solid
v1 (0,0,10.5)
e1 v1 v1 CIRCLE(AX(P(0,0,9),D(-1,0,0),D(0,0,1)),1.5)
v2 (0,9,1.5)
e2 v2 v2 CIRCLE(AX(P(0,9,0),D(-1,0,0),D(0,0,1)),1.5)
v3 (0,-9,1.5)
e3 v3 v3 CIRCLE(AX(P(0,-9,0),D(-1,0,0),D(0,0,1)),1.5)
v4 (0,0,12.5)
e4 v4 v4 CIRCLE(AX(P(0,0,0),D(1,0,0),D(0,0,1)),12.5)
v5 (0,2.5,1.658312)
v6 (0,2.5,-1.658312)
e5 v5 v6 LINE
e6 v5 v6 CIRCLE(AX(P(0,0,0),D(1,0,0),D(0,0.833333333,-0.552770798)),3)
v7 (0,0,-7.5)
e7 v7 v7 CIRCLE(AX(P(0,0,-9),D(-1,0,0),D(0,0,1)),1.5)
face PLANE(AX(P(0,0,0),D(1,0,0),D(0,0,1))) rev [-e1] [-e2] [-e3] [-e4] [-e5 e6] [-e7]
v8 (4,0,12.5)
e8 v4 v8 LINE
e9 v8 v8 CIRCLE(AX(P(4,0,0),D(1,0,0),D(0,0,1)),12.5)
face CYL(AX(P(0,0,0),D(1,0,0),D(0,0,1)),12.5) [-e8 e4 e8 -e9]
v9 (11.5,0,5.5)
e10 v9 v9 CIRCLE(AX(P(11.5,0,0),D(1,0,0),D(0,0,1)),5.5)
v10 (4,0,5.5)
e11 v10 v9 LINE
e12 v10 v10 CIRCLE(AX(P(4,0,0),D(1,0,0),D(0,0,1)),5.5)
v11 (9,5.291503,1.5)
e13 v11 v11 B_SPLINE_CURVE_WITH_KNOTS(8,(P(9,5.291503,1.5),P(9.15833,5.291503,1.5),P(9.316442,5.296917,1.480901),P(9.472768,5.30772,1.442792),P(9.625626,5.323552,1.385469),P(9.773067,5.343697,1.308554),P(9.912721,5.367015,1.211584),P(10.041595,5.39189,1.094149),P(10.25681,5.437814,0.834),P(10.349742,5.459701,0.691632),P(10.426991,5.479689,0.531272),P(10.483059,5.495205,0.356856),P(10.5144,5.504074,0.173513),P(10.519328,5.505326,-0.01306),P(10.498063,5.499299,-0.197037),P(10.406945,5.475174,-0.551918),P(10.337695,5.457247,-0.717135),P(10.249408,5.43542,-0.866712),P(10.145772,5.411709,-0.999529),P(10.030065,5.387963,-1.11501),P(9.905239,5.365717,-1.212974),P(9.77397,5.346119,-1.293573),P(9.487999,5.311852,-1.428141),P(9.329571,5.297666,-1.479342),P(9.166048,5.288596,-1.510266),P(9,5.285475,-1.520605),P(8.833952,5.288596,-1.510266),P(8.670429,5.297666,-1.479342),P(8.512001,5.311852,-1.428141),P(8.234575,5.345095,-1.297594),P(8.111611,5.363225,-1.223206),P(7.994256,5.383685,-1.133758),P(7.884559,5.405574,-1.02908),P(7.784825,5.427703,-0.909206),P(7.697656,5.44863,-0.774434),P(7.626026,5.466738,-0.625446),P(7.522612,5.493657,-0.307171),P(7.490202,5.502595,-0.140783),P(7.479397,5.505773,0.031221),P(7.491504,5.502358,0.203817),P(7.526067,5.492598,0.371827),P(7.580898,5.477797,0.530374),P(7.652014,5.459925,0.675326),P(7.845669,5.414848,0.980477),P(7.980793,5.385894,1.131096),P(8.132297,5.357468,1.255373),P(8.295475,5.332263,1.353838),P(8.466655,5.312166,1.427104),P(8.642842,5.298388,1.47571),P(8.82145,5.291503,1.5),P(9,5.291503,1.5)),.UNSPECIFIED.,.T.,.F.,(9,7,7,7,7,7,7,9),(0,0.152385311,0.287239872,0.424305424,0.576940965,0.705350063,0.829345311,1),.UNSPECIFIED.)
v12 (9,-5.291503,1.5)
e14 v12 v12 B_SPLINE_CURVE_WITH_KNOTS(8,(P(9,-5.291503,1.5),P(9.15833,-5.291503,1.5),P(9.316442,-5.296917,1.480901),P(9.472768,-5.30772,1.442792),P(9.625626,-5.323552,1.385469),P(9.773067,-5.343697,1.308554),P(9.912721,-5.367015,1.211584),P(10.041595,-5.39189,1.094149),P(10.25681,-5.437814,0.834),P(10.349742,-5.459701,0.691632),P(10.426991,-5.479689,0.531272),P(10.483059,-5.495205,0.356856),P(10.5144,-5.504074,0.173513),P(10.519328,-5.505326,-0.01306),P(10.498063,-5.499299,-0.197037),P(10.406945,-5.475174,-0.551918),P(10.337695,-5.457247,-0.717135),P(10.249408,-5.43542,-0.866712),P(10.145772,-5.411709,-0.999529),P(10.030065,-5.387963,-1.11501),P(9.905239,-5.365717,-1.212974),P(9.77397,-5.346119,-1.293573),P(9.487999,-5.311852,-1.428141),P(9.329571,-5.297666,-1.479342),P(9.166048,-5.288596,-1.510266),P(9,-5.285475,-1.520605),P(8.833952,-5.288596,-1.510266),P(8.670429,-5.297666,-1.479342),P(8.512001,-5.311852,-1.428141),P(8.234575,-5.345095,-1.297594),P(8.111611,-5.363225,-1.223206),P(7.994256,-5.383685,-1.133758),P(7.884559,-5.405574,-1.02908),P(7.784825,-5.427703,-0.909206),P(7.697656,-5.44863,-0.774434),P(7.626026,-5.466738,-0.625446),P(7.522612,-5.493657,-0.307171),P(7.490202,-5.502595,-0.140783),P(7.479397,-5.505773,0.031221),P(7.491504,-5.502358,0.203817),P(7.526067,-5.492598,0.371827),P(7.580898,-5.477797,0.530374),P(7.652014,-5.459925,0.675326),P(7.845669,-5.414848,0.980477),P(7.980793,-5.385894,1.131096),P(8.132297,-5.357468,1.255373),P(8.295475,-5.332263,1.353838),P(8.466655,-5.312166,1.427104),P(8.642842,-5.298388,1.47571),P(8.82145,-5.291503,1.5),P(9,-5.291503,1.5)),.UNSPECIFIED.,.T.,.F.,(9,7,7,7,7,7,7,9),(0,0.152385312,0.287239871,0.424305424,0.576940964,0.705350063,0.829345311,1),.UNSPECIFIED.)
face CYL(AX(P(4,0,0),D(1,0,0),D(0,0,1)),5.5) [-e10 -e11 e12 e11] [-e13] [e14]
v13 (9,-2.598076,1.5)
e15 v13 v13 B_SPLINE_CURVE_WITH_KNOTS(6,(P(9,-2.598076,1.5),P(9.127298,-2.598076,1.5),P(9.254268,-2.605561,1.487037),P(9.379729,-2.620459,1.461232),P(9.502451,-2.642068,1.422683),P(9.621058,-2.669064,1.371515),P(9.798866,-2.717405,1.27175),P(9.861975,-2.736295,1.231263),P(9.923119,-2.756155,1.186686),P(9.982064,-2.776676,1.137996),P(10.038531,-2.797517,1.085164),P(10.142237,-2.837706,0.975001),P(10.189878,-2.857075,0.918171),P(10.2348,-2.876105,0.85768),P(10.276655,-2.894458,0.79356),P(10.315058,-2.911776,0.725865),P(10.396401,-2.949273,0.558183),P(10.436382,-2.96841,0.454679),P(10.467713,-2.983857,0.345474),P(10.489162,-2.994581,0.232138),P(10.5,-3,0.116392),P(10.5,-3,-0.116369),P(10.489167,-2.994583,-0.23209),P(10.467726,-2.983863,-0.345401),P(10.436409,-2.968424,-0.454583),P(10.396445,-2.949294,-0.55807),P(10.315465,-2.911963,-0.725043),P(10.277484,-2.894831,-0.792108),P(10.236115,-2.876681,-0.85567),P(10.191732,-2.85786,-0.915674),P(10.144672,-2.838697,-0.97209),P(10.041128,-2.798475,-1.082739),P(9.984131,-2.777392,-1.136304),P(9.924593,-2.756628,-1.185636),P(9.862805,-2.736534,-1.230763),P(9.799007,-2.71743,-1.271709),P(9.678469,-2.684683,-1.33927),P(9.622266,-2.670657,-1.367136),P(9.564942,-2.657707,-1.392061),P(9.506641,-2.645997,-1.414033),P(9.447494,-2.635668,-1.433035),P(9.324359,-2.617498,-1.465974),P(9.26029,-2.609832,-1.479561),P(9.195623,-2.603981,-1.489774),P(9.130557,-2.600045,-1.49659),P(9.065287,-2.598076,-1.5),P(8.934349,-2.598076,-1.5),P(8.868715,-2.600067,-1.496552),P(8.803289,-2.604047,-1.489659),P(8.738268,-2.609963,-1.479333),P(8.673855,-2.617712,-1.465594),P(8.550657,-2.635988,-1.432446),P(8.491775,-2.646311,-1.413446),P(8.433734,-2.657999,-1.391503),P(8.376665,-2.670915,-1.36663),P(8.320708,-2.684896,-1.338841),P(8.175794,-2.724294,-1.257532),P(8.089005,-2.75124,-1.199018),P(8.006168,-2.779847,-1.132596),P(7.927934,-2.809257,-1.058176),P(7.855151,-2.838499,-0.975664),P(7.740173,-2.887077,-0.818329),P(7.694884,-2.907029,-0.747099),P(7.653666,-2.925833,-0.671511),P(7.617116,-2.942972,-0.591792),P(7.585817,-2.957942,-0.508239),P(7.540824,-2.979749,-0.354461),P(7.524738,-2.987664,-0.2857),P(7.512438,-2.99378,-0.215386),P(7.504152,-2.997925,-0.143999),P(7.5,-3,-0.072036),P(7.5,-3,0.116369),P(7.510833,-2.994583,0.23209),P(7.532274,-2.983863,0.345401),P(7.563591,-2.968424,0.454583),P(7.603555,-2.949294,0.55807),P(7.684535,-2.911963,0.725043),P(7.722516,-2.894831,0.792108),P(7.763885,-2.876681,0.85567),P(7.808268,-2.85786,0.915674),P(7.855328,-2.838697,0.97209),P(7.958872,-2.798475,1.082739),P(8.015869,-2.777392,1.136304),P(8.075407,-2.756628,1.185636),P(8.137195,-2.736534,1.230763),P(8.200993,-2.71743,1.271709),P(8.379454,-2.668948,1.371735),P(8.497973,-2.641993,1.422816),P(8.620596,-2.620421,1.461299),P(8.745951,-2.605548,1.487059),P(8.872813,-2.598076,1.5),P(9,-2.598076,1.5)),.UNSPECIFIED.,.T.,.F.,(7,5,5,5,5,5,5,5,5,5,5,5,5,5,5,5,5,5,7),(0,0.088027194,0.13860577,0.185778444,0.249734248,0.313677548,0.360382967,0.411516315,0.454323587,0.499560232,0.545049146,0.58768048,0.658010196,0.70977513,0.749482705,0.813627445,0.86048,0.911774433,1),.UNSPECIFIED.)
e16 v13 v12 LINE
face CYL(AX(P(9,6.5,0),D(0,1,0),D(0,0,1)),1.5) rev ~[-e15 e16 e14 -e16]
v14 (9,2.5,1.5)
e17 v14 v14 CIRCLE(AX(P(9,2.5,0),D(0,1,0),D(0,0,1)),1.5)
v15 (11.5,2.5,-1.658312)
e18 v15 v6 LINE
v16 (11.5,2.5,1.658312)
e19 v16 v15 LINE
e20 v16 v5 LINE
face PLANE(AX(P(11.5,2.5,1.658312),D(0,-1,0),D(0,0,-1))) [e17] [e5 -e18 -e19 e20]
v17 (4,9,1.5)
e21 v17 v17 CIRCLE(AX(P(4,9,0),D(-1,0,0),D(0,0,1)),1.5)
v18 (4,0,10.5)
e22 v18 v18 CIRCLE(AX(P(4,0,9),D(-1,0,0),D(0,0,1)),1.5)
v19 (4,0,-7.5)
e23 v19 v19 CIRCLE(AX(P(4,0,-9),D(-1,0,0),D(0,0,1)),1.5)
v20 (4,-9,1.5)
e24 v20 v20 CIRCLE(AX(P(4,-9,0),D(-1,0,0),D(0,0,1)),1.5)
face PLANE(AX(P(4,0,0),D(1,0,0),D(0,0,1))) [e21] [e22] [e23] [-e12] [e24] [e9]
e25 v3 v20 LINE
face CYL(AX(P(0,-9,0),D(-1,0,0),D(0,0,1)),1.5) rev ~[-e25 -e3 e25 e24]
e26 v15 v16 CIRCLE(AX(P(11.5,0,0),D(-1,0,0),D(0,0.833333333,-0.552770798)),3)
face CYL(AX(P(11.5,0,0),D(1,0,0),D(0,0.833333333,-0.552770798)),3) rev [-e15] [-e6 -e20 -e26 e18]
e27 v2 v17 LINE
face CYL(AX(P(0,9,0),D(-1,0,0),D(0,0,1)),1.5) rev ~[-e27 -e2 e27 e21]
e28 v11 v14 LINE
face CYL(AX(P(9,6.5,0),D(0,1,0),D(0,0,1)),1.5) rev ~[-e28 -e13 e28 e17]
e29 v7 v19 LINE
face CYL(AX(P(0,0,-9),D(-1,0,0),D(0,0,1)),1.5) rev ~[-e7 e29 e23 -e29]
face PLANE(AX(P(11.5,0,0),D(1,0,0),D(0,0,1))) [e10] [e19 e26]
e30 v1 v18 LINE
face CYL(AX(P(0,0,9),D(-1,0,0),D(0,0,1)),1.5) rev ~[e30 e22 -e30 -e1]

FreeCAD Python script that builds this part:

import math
import FreeCAD as App
import Part
import Sketcher
from FreeCAD import Vector
Q = App.Units.Quantity


def add_polygon(sketch, points):
    """Adds a closed chain of lines whose ends are joined by coincident constraints."""
    first, n = sketch.GeometryCount, len(points)
    for a, b in zip(points, points[1:] + points[:1]):
        sketch.addGeometry(Part.LineSegment(App.Vector(*a, 0), App.Vector(*b, 0)), False)
    for i in range(n):
        sketch.addConstraint(Sketcher.Constraint("Coincident", first + i, 2, first + (i + 1) % n, 1))

doc = App.newDocument("Part")
body = doc.addObject("PartDesign::Body", "Body")

sketch1 = doc.addObject("Sketcher::SketchObject", "Sketch")
body.addObject(sketch1)
sketch1.AttachmentSupport = (doc.XY_Plane, [""])
sketch1.MapMode = "FlatFace"
add_polygon(sketch1, [(0, 12.5), (0, 0), (11.5, 0), (11.5, 5.5), (4, 5.5), (4, 12.5)])
sketch1.addConstraint([
    Sketcher.Constraint("Vertical", 0),
    Sketcher.Constraint("Horizontal", 1),
    Sketcher.Constraint("Vertical", 2),
    Sketcher.Constraint("Horizontal", 3),
    Sketcher.Constraint("Vertical", 4),
    Sketcher.Constraint("Horizontal", 5),
    Sketcher.Constraint("Coincident", 0, 2, -1, 1),
    Sketcher.Constraint("DistanceX", 5, 2, 5, 1, Q("4 mm")),
    Sketcher.Constraint("DistanceY", 4, 1, 4, 2, Q("7 mm")),
    Sketcher.Constraint("DistanceX", 1, 1, 1, 2, Q("11.5 mm")),
    Sketcher.Constraint("DistanceY", 0, 2, 0, 1, Q("12.5 mm")),
])
revolution = doc.addObject("PartDesign::Revolution", "Revolution")
body.addObject(revolution)
revolution.Profile = sketch1
revolution.ReferenceAxis = (sketch1, ["H_Axis"])
revolution.Angle = 360

sketch2 = doc.addObject("Sketcher::SketchObject", "Sketch001")
body.addObject(sketch2)
sketch2.AttachmentSupport = (doc.YZ_Plane, [""])
sketch2.MapMode = "FlatFace"
sketch2.AttachmentOffset = App.Placement(Vector(0, 0, 11.5), App.Rotation())
sketch2.addGeometry([
    Part.LineSegment(Vector(2.5, -1.7, 0), Vector(2.5, 1.7, 0)),
    Part.ArcOfCircle(Part.Circle(Vector(0, 0, 0), Vector(0, 0, 1), 3), math.radians(34), math.radians(326)),
], False)
sketch2.addConstraint([
    Sketcher.Constraint("Coincident", 0, 1, 1, 2),
    Sketcher.Constraint("Coincident", 1, 1, 0, 2),
    Sketcher.Constraint("Vertical", 0),
    Sketcher.Constraint("Coincident", 1, 3, -1, 1),
    Sketcher.Constraint("Radius", 1, Q("3 mm")),
    Sketcher.Constraint("DistanceX", -1, 1, 0, 1, Q("2.5 mm")),
])
pocket1 = doc.addObject("PartDesign::Pocket", "Pocket")
body.addObject(pocket1)
pocket1.Profile = sketch2
pocket1.Type = "UpToFirst"

sketch3 = doc.addObject("Sketcher::SketchObject", "Sketch002")
body.addObject(sketch3)
sketch3.AttachmentSupport = (doc.XZ_Plane, [""])
sketch3.MapMode = "FlatFace"
sketch3.AttachmentOffset = App.Placement(Vector(0, 0, -6.5), App.Rotation())
sketch3.addGeometry(Part.Circle(Vector(9, 0, 0), Vector(0, 0, 1), 1.5), False)
sketch3.addConstraint([
    Sketcher.Constraint("PointOnObject", 0, 3, -1),
    Sketcher.Constraint("Diameter", 0, Q("3 mm")),
    Sketcher.Constraint("DistanceX", -1, 1, 0, 3, Q("9 mm")),
])
pocket2 = doc.addObject("PartDesign::Pocket", "Pocket001")
body.addObject(pocket2)
pocket2.Profile = sketch3
pocket2.Length = 16
pocket2.Reversed = True

sketch4 = doc.addObject("Sketcher::SketchObject", "Sketch003")
body.addObject(sketch4)
sketch4.AttachmentSupport = (doc.YZ_Plane, [""])
sketch4.MapMode = "FlatFace"
sketch4.addGeometry(Part.Circle(Vector(0, 9, 0), Vector(0, 0, 1), 1.5), False)
sketch4.addConstraint([
    Sketcher.Constraint("PointOnObject", 0, 3, -2),
    Sketcher.Constraint("Diameter", 0, Q("3 mm")),
    Sketcher.Constraint("DistanceY", -1, 1, 0, 3, Q("9 mm")),
])
pocket3 = doc.addObject("PartDesign::Pocket", "Pocket002")
body.addObject(pocket3)
pocket3.Profile = sketch4
pocket3.Type = "UpToFirst"
pocket3.Reversed = True

sketch5 = doc.addObject("Sketcher::SketchObject", "Sketch004")
body.addObject(sketch5)
sketch5.AttachmentSupport = (doc.YZ_Plane, [""])
sketch5.MapMode = "FlatFace"
sketch5.addGeometry(Part.Circle(Vector(-9, 0, 0), Vector(0, 0, 1), 1.5), False)
sketch5.addConstraint([
    Sketcher.Constraint("PointOnObject", 0, 3, -1),
    Sketcher.Constraint("Diameter", 0, Q("3 mm")),
    Sketcher.Constraint("DistanceX", 0, 3, -1, 1, Q("9 mm")),
])
pocket4 = doc.addObject("PartDesign::Pocket", "Pocket003")
body.addObject(pocket4)
pocket4.Profile = sketch5
pocket4.Type = "UpToFirst"
pocket4.Reversed = True

sketch6 = doc.addObject("Sketcher::SketchObject", "Sketch005")
body.addObject(sketch6)
sketch6.AttachmentSupport = (doc.YZ_Plane, [""])
sketch6.MapMode = "FlatFace"
sketch6.addGeometry(Part.Circle(Vector(0, -9, 0), Vector(0, 0, 1), 1.5), False)
sketch6.addConstraint([
    Sketcher.Constraint("PointOnObject", 0, 3, -2),
    Sketcher.Constraint("Diameter", 0, Q("3 mm")),
    Sketcher.Constraint("DistanceY", 0, 3, -1, 1, Q("9 mm")),
])
pocket5 = doc.addObject("PartDesign::Pocket", "Pocket004")
body.addObject(pocket5)
pocket5.Profile = sketch6
pocket5.Type = "UpToFirst"
pocket5.Reversed = True

sketch7 = doc.addObject("Sketcher::SketchObject", "Sketch006")
body.addObject(sketch7)
sketch7.AttachmentSupport = (doc.YZ_Plane, [""])
sketch7.MapMode = "FlatFace"
sketch7.addGeometry(Part.Circle(Vector(9, 0, 0), Vector(0, 0, 1), 1.5), False)
sketch7.addConstraint([
    Sketcher.Constraint("PointOnObject", 0, 3, -1),
    Sketcher.Constraint("Diameter", 0, Q("3 mm")),
    Sketcher.Constraint("DistanceX", -1, 1, 0, 3, Q("9 mm")),
])
pocket6 = doc.addObject("PartDesign::Pocket", "Pocket005")
body.addObject(pocket6)
pocket6.Profile = sketch7
pocket6.Type = "UpToFirst"
pocket6.Reversed = True

doc.recompute()
